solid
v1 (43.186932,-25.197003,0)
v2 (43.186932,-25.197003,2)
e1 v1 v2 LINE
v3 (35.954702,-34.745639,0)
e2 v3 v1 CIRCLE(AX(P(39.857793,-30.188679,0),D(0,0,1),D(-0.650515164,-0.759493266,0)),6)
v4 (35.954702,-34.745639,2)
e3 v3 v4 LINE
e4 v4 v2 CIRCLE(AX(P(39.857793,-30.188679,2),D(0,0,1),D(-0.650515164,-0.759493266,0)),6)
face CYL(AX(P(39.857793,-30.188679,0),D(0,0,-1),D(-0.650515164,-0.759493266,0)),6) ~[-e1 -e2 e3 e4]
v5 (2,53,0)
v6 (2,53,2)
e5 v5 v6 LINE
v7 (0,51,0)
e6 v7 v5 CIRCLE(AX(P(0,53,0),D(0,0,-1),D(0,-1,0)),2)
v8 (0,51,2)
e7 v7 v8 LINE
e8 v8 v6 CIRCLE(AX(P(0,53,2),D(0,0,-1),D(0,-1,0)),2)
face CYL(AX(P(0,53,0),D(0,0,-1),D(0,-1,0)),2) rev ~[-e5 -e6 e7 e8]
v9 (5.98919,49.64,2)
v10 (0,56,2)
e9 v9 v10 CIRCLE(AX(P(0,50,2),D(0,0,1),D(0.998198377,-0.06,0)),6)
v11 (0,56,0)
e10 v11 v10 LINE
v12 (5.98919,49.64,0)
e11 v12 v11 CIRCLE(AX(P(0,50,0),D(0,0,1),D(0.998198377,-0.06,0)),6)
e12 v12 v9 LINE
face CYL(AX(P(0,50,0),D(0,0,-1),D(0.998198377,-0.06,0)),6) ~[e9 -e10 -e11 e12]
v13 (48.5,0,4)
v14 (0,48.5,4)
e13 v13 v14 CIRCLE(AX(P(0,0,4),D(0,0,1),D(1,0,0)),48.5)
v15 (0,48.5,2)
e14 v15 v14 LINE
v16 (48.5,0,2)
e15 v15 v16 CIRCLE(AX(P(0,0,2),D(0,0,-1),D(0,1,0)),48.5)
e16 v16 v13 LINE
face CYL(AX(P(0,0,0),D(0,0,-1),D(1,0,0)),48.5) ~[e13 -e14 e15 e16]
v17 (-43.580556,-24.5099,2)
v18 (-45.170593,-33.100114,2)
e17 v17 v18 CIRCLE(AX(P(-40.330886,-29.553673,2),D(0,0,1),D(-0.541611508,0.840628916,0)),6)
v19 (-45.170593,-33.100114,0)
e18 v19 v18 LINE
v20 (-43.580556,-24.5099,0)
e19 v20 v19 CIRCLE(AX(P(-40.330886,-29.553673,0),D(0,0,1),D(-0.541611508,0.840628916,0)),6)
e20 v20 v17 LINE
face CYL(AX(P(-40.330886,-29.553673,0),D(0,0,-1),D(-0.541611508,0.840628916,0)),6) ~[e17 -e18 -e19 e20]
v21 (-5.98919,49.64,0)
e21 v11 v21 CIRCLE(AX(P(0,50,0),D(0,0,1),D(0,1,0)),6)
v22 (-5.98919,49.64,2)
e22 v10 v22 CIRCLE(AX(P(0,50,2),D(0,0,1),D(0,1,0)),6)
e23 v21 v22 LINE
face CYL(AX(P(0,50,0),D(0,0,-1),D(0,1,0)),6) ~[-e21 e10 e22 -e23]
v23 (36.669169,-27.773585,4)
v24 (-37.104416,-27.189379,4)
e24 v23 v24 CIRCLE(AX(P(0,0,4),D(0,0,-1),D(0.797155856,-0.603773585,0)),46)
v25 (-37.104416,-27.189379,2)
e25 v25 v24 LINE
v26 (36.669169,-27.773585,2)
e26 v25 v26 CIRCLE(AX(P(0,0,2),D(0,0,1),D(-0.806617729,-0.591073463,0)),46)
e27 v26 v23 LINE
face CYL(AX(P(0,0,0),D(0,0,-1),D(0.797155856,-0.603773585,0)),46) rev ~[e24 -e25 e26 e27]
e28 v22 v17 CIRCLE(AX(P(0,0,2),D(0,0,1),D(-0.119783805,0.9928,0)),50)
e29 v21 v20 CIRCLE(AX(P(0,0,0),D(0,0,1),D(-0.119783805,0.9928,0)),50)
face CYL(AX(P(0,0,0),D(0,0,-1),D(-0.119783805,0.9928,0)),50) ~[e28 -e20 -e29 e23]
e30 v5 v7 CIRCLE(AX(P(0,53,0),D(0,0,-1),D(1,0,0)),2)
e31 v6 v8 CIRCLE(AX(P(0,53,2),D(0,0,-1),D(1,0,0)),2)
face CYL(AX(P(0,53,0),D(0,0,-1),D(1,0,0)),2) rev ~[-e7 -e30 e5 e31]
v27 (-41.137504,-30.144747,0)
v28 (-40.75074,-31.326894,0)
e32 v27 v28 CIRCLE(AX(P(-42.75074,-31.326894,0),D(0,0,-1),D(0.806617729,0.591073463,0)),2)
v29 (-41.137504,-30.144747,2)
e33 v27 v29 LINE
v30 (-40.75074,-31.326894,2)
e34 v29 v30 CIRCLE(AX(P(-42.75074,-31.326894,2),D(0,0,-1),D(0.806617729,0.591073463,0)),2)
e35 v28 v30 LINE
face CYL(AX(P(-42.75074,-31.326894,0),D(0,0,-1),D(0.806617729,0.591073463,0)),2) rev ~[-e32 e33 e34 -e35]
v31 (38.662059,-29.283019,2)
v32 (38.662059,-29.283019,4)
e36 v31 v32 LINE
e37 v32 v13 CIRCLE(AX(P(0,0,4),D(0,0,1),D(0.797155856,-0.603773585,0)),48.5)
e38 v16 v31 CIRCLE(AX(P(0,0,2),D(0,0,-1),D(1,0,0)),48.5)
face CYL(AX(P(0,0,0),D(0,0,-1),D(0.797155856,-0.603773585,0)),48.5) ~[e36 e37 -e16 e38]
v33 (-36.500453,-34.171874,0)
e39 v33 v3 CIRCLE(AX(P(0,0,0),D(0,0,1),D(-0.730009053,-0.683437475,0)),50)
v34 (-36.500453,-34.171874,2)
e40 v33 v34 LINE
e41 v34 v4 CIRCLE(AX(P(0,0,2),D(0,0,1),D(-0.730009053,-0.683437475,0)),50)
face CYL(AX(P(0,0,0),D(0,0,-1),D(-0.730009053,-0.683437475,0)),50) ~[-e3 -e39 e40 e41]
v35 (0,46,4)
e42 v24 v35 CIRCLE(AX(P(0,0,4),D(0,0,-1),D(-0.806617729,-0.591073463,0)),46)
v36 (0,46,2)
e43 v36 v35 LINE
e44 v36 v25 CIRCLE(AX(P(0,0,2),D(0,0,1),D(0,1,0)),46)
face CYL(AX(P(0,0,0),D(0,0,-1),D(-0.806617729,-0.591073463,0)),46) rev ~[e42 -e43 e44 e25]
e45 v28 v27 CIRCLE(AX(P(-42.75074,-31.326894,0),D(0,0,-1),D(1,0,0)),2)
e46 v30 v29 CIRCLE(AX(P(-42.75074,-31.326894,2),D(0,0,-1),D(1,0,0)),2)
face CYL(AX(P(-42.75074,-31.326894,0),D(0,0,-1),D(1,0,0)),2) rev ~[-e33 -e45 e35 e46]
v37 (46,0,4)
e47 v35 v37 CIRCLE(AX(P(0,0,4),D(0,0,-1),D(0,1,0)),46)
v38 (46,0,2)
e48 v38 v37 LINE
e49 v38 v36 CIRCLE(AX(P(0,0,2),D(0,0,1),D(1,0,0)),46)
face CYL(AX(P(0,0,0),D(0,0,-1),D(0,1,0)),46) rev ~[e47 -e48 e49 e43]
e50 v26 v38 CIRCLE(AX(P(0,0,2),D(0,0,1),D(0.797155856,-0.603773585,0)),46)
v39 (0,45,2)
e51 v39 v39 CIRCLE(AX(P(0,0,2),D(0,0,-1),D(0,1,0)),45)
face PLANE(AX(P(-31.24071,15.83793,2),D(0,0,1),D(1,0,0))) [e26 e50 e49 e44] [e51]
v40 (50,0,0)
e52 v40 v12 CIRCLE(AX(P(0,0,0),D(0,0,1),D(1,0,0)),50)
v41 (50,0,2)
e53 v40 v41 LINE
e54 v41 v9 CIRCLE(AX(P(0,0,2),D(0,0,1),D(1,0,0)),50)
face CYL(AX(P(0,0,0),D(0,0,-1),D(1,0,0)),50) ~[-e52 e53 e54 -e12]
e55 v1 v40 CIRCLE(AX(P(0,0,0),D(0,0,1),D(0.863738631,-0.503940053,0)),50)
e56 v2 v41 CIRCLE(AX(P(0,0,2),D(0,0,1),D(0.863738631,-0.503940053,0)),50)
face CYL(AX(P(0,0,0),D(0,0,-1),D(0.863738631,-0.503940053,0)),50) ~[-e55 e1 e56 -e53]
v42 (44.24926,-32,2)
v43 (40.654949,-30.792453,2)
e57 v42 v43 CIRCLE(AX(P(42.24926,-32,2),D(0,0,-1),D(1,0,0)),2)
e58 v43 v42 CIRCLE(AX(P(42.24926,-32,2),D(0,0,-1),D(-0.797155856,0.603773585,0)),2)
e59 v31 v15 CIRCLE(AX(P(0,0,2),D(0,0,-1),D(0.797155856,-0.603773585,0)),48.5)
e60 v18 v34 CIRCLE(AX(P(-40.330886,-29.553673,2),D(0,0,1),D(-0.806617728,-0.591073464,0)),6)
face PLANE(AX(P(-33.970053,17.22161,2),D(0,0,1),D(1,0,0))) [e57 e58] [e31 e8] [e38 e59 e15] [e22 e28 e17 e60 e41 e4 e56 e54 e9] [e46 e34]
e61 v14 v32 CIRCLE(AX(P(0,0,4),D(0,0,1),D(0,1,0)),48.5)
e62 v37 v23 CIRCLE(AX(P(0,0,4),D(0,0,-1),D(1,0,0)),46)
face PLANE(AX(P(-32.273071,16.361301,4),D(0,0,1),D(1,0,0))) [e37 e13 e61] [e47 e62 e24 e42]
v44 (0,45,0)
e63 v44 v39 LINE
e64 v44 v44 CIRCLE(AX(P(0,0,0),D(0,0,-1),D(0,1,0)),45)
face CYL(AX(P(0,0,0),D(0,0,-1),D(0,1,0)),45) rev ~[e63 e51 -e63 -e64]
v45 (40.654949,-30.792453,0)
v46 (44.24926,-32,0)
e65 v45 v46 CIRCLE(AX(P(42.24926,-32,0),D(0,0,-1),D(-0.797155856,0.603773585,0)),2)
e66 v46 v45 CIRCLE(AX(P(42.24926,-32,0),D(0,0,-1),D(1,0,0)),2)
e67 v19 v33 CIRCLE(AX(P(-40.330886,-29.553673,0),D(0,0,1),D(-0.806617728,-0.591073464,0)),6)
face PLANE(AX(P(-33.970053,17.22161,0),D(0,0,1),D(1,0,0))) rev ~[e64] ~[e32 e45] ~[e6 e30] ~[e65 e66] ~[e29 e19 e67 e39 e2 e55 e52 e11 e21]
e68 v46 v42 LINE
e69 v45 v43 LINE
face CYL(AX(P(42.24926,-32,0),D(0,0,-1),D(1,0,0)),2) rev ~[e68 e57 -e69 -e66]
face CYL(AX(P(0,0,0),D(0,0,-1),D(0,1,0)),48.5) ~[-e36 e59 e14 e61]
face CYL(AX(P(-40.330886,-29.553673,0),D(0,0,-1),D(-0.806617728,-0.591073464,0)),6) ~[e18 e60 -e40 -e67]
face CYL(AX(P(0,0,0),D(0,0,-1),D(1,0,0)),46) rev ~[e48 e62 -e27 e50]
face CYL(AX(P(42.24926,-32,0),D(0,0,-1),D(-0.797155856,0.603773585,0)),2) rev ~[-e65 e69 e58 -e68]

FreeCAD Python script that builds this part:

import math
import FreeCAD as App
import Part
import Sketcher

doc = App.newDocument("Part")
body = doc.addObject("PartDesign::Body", "Body")

sketch1 = body.newObject("Sketcher::SketchObject", "Sketch")
sketch1.AttachmentSupport = (doc.getObject("XY_Plane"), [""])
sketch1.MapMode = "FlatFace"
sketch1.addGeometry([
    Part.ArcOfCircle(Part.Circle(App.Vector(0, 0, 0), App.Vector(0, 0, 1), 48.5), math.radians(90), math.radians(322.859358)),
    Part.ArcOfCircle(Part.Circle(App.Vector(0, 0, 0), App.Vector(0, 0, 1), 48.5), math.radians(-37.140642), math.radians(0)),
    Part.ArcOfCircle(Part.Circle(App.Vector(0, 0, 0), App.Vector(0, 0, 1), 48.5), math.radians(0), math.radians(90)),
    Part.ArcOfCircle(Part.Circle(App.Vector(0, 0, 0), App.Vector(0, 0, 1), 46), math.radians(-143.766779), math.radians(-37.140642)),
    Part.ArcOfCircle(Part.Circle(App.Vector(0, 0, 0), App.Vector(0, 0, 1), 46), math.radians(90), math.radians(216.233221)),
    Part.ArcOfCircle(Part.Circle(App.Vector(0, 0, 0), App.Vector(0, 0, 1), 46), math.radians(0), math.radians(90)),
    Part.ArcOfCircle(Part.Circle(App.Vector(0, 0, 0), App.Vector(0, 0, 1), 46), math.radians(-37.140642), math.radians(0)),
], False)
sketch1.addConstraint([
    Sketcher.Constraint("Tangent", 0, 2, 1, 1),
    Sketcher.Constraint("Tangent", 1, 2, 2, 1),
    Sketcher.Constraint("Tangent", 2, 2, 0, 1),
    Sketcher.Constraint("Tangent", 3, 1, 4, 2),
    Sketcher.Constraint("Tangent", 4, 1, 5, 2),
    Sketcher.Constraint("Tangent", 5, 1, 6, 2),
    Sketcher.Constraint("Tangent", 6, 1, 3, 2),
    Sketcher.Constraint("Coincident", 0, 3, -1, 1),
    Sketcher.Constraint("Coincident", 3, 3, -1, 1),
    Sketcher.Constraint("Equal", 3, 4),
    Sketcher.Constraint("PointOnObject", 1, 2, -1),
    Sketcher.Constraint("PointOnObject", 2, 2, -2),
    Sketcher.Constraint("PointOnObject", 4, 1, -2),
    Sketcher.Constraint("PointOnObject", 5, 1, -1),
    Sketcher.Constraint("Radius", 3, 46.0),
    Sketcher.Constraint("Radius", 0, 48.5),
    Sketcher.Constraint("DistanceX", -1, 1, 0, 2, 38.662059),
    Sketcher.Constraint("DistanceY", 3, 1, -1, 1, 27.189379),
    Sketcher.Constraint("DistanceX", -1, 1, 6, 1, 36.669169),
])
pad1 = body.newObject("PartDesign::Pad", "Pad")
pad1.Profile = sketch1
pad1.Length = 4

sketch2 = body.newObject("Sketcher::SketchObject", "Sketch001")
sketch2.AttachmentSupport = (doc.getObject("XY_Plane"), [""])
sketch2.MapMode = "FlatFace"
sketch2.addGeometry([
    Part.ArcOfCircle(Part.Circle(App.Vector(0, 0, 0), App.Vector(0, 0, 1), 50), math.radians(96.879626), math.radians(209.353596)),
    Part.ArcOfCircle(Part.Circle(App.Vector(-40.330886, -29.553673, 0), App.Vector(0, 0, 1), 6), math.radians(122.793409), math.radians(216.233222)),
    Part.ArcOfCircle(Part.Circle(App.Vector(-40.330886, -29.553673, 0), App.Vector(0, 0, 1), 6), math.radians(-143.766778), math.radians(-50.326966)),
    Part.ArcOfCircle(Part.Circle(App.Vector(0, 0, 0), App.Vector(0, 0, 1), 50), math.radians(-136.887153), math.radians(-44.020267)),
    Part.ArcOfCircle(Part.Circle(App.Vector(39.857793, -30.188679, 0), App.Vector(0, 0, 1), 6), math.radians(-130.580454), math.radians(56.299171)),
    Part.ArcOfCircle(Part.Circle(App.Vector(0, 0, 0), App.Vector(0, 0, 1), 50), math.radians(-30.261016), math.radians(0)),
    Part.ArcOfCircle(Part.Circle(App.Vector(0, 0, 0), App.Vector(0, 0, 1), 50), math.radians(0), math.radians(83.120374)),
    Part.ArcOfCircle(Part.Circle(App.Vector(0, 50, 0), App.Vector(0, 0, 1), 6), math.radians(-3.439813), math.radians(90)),
    Part.ArcOfCircle(Part.Circle(App.Vector(0, 50, 0), App.Vector(0, 0, 1), 6), math.radians(90), math.radians(183.439813)),
    Part.ArcOfCircle(Part.Circle(App.Vector(0, 0, 0), App.Vector(0, 0, 1), 48.5), math.radians(90), math.radians(322.859358)),
    Part.ArcOfCircle(Part.Circle(App.Vector(0, 0, 0), App.Vector(0, 0, 1), 48.5), math.radians(0), math.radians(90)),
    Part.ArcOfCircle(Part.Circle(App.Vector(0, 0, 0), App.Vector(0, 0, 1), 48.5), math.radians(-37.140642), math.radians(0)),
    Part.ArcOfCircle(Part.Circle(App.Vector(42.24926, -32, 0), App.Vector(0, 0, 1), 2), math.radians(0), math.radians(142.859358)),
    Part.ArcOfCircle(Part.Circle(App.Vector(42.24926, -32, 0), App.Vector(0, 0, 1), 2), math.radians(142.859358), math.radians(360)),
    Part.ArcOfCircle(Part.Circle(App.Vector(-42.75074, -31.326894, 0), App.Vector(0, 0, 1), 2), math.radians(0), math.radians(36.233221)),
    Part.ArcOfCircle(Part.Circle(App.Vector(-42.75074, -31.326894, 0), App.Vector(0, 0, 1), 2), math.radians(36.233221), math.radians(360)),
    Part.ArcOfCircle(Part.Circle(App.Vector(0, 53, 0), App.Vector(0, 0, 1), 2), math.radians(0), math.radians(270)),
    Part.ArcOfCircle(Part.Circle(App.Vector(0, 53, 0), App.Vector(0, 0, 1), 2), math.radians(-90), math.radians(0)),
    Part.ArcOfCircle(Part.Circle(App.Vector(0, 0, 0), App.Vector(0, 0, 1), 46), math.radians(90), math.radians(216.233221)),
    Part.ArcOfCircle(Part.Circle(App.Vector(0, 0, 0), App.Vector(0, 0, 1), 46), math.radians(-143.766779), math.radians(-37.140642)),
    Part.ArcOfCircle(Part.Circle(App.Vector(0, 0, 0), App.Vector(0, 0, 1), 46), math.radians(-37.140642), math.radians(0)),
    Part.ArcOfCircle(Part.Circle(App.Vector(0, 0, 0), App.Vector(0, 0, 1), 46), math.radians(0), math.radians(90)),
    Part.Circle(App.Vector(0, 0, 0), App.Vector(0, 0, 1), 45),
], False)
sketch2.addConstraint([
    Sketcher.Constraint("Coincident", 0, 2, 1, 1),
    Sketcher.Constraint("Tangent", 1, 2, 2, 1),
    Sketcher.Constraint("Coincident", 2, 2, 3, 1),
    Sketcher.Constraint("Coincident", 3, 2, 4, 1),
    Sketcher.Constraint("Coincident", 4, 2, 5, 1),
    Sketcher.Constraint("Tangent", 5, 2, 6, 1),
    Sketcher.Constraint("Coincident", 6, 2, 7, 1),
    Sketcher.Constraint("Tangent", 7, 2, 8, 1),
    Sketcher.Constraint("Coincident", 8, 2, 0, 1),
    Sketcher.Constraint("Tangent", 9, 1, 10, 2),
    Sketcher.Constraint("Tangent", 10, 1, 11, 2),
    Sketcher.Constraint("Tangent", 11, 1, 9, 2),
    Sketcher.Constraint("Tangent", 12, 1, 13, 2),
    Sketcher.Constraint("Coincident", 13, 1, 12, 2),
    Sketcher.Constraint("Tangent", 14, 1, 15, 2),
    Sketcher.Constraint("Coincident", 15, 1, 14, 2),
    Sketcher.Constraint("Tangent", 16, 1, 17, 2),
    Sketcher.Constraint("Coincident", 17, 1, 16, 2),
    Sketcher.Constraint("Tangent", 18, 2, 19, 1),
    Sketcher.Constraint("Tangent", 19, 2, 20, 1),
    Sketcher.Constraint("Tangent", 20, 2, 21, 1),
    Sketcher.Constraint("Tangent", 21, 2, 18, 1),
    Sketcher.Constraint("Coincident", 0, 3, -1, 1),
    Sketcher.Constraint("Coincident", 3, 3, -1, 1),
    Sketcher.Constraint("Coincident", 5, 3, -1, 1),
    Sketcher.Constraint("Coincident", 9, 3, -1, 1),
    Sketcher.Constraint("Coincident", 18, 3, -1, 1),
    Sketcher.Constraint("Coincident", 22, 3, -1, 1),
    Sketcher.Constraint("Equal", 1, 2),
    Sketcher.Constraint("Equal", 0, 3),
    Sketcher.Constraint("Equal", 2, 4),
    Sketcher.Constraint("Equal", 3, 5),
    Sketcher.Constraint("Equal", 5, 6),
    Sketcher.Constraint("Equal", 4, 7),
    Sketcher.Constraint("Equal", 7, 8),
    Sketcher.Constraint("Equal", 13, 14),
    Sketcher.Constraint("Equal", 15, 16),
    Sketcher.Constraint("Equal", 18, 19),
    Sketcher.Constraint("PointOnObject", 7, 3, -2),
    Sketcher.Constraint("PointOnObject", 16, 3, -2),
    Sketcher.Constraint("PointOnObject", 5, 2, -1),
    Sketcher.Constraint("PointOnObject", 7, 2, -2),
    Sketcher.Constraint("PointOnObject", 9, 1, -2),
    Sketcher.Constraint("PointOnObject", 10, 1, -1),
    Sketcher.Constraint("PointOnObject", 17, 1, -2),
    Sketcher.Constraint("PointOnObject", 20, 2, -1),
    Sketcher.Constraint("PointOnObject", 21, 2, -2),
    Sketcher.Constraint("Horizontal", 13, 3, 12, 1),
    Sketcher.Constraint("Horizontal", 15, 3, 14, 1),
    Sketcher.Constraint("Horizontal", 17, 3, 16, 1),
    Sketcher.Constraint("Diameter", 22, 90.0),
    Sketcher.Constraint("Radius", 0, 50.0),
    Sketcher.Constraint("Radius", 1, 6.0),
    Sketcher.Constraint("Radius", 12, 2.0),
    Sketcher.Constraint("Radius", 18, 46.0),
    Sketcher.Constraint("Radius", 9, 48.5),
    Sketcher.Constraint("DistanceY", -1, 1, 7, 3, 50.0),
    Sketcher.Constraint("DistanceY", 12, 3, -1, 1, 32.0),
    Sketcher.Constraint("DistanceY", -1, 1, 16, 3, 53.0),
    Sketcher.Constraint("DistanceY", 0, 2, -1, 1, 24.5099),
    Sketcher.Constraint("DistanceX", -1, 1, 3, 2, 35.954702),
    Sketcher.Constraint("DistanceY", 2, 2, 1, 3, 4.618201),
    Sketcher.Constraint("DistanceX", 11, 1, 12, 3, 3.587201),
    Sketcher.Constraint("DistanceY", 4, 3, -1, 1, 30.188679),
    Sketcher.Constraint("DistanceX", -1, 1, 12, 3, 42.24926),
    Sketcher.Constraint("DistanceX", 14, 3, -1, 1, 42.75074),
    Sketcher.Constraint("DistanceX", -1, 1, 13, 1, 40.654949),
    Sketcher.Constraint("DistanceY", 18, 2, -1, 1, 27.189379),
    Sketcher.Constraint("DistanceX", -1, 1, 19, 2, 36.669169),
    Sketcher.Constraint("DistanceY", 14, 3, 1, 3, 1.77322),
    Sketcher.Constraint("DistanceY", 1, 2, 14, 3, 1.77322),
    Sketcher.Constraint("DistanceX", 15, 1, 18, 2, 4.033089),
])
pad2 = body.newObject("PartDesign::Pad", "Pad001")
pad2.Profile = sketch2
pad2.Length = 2

doc.recompute()
